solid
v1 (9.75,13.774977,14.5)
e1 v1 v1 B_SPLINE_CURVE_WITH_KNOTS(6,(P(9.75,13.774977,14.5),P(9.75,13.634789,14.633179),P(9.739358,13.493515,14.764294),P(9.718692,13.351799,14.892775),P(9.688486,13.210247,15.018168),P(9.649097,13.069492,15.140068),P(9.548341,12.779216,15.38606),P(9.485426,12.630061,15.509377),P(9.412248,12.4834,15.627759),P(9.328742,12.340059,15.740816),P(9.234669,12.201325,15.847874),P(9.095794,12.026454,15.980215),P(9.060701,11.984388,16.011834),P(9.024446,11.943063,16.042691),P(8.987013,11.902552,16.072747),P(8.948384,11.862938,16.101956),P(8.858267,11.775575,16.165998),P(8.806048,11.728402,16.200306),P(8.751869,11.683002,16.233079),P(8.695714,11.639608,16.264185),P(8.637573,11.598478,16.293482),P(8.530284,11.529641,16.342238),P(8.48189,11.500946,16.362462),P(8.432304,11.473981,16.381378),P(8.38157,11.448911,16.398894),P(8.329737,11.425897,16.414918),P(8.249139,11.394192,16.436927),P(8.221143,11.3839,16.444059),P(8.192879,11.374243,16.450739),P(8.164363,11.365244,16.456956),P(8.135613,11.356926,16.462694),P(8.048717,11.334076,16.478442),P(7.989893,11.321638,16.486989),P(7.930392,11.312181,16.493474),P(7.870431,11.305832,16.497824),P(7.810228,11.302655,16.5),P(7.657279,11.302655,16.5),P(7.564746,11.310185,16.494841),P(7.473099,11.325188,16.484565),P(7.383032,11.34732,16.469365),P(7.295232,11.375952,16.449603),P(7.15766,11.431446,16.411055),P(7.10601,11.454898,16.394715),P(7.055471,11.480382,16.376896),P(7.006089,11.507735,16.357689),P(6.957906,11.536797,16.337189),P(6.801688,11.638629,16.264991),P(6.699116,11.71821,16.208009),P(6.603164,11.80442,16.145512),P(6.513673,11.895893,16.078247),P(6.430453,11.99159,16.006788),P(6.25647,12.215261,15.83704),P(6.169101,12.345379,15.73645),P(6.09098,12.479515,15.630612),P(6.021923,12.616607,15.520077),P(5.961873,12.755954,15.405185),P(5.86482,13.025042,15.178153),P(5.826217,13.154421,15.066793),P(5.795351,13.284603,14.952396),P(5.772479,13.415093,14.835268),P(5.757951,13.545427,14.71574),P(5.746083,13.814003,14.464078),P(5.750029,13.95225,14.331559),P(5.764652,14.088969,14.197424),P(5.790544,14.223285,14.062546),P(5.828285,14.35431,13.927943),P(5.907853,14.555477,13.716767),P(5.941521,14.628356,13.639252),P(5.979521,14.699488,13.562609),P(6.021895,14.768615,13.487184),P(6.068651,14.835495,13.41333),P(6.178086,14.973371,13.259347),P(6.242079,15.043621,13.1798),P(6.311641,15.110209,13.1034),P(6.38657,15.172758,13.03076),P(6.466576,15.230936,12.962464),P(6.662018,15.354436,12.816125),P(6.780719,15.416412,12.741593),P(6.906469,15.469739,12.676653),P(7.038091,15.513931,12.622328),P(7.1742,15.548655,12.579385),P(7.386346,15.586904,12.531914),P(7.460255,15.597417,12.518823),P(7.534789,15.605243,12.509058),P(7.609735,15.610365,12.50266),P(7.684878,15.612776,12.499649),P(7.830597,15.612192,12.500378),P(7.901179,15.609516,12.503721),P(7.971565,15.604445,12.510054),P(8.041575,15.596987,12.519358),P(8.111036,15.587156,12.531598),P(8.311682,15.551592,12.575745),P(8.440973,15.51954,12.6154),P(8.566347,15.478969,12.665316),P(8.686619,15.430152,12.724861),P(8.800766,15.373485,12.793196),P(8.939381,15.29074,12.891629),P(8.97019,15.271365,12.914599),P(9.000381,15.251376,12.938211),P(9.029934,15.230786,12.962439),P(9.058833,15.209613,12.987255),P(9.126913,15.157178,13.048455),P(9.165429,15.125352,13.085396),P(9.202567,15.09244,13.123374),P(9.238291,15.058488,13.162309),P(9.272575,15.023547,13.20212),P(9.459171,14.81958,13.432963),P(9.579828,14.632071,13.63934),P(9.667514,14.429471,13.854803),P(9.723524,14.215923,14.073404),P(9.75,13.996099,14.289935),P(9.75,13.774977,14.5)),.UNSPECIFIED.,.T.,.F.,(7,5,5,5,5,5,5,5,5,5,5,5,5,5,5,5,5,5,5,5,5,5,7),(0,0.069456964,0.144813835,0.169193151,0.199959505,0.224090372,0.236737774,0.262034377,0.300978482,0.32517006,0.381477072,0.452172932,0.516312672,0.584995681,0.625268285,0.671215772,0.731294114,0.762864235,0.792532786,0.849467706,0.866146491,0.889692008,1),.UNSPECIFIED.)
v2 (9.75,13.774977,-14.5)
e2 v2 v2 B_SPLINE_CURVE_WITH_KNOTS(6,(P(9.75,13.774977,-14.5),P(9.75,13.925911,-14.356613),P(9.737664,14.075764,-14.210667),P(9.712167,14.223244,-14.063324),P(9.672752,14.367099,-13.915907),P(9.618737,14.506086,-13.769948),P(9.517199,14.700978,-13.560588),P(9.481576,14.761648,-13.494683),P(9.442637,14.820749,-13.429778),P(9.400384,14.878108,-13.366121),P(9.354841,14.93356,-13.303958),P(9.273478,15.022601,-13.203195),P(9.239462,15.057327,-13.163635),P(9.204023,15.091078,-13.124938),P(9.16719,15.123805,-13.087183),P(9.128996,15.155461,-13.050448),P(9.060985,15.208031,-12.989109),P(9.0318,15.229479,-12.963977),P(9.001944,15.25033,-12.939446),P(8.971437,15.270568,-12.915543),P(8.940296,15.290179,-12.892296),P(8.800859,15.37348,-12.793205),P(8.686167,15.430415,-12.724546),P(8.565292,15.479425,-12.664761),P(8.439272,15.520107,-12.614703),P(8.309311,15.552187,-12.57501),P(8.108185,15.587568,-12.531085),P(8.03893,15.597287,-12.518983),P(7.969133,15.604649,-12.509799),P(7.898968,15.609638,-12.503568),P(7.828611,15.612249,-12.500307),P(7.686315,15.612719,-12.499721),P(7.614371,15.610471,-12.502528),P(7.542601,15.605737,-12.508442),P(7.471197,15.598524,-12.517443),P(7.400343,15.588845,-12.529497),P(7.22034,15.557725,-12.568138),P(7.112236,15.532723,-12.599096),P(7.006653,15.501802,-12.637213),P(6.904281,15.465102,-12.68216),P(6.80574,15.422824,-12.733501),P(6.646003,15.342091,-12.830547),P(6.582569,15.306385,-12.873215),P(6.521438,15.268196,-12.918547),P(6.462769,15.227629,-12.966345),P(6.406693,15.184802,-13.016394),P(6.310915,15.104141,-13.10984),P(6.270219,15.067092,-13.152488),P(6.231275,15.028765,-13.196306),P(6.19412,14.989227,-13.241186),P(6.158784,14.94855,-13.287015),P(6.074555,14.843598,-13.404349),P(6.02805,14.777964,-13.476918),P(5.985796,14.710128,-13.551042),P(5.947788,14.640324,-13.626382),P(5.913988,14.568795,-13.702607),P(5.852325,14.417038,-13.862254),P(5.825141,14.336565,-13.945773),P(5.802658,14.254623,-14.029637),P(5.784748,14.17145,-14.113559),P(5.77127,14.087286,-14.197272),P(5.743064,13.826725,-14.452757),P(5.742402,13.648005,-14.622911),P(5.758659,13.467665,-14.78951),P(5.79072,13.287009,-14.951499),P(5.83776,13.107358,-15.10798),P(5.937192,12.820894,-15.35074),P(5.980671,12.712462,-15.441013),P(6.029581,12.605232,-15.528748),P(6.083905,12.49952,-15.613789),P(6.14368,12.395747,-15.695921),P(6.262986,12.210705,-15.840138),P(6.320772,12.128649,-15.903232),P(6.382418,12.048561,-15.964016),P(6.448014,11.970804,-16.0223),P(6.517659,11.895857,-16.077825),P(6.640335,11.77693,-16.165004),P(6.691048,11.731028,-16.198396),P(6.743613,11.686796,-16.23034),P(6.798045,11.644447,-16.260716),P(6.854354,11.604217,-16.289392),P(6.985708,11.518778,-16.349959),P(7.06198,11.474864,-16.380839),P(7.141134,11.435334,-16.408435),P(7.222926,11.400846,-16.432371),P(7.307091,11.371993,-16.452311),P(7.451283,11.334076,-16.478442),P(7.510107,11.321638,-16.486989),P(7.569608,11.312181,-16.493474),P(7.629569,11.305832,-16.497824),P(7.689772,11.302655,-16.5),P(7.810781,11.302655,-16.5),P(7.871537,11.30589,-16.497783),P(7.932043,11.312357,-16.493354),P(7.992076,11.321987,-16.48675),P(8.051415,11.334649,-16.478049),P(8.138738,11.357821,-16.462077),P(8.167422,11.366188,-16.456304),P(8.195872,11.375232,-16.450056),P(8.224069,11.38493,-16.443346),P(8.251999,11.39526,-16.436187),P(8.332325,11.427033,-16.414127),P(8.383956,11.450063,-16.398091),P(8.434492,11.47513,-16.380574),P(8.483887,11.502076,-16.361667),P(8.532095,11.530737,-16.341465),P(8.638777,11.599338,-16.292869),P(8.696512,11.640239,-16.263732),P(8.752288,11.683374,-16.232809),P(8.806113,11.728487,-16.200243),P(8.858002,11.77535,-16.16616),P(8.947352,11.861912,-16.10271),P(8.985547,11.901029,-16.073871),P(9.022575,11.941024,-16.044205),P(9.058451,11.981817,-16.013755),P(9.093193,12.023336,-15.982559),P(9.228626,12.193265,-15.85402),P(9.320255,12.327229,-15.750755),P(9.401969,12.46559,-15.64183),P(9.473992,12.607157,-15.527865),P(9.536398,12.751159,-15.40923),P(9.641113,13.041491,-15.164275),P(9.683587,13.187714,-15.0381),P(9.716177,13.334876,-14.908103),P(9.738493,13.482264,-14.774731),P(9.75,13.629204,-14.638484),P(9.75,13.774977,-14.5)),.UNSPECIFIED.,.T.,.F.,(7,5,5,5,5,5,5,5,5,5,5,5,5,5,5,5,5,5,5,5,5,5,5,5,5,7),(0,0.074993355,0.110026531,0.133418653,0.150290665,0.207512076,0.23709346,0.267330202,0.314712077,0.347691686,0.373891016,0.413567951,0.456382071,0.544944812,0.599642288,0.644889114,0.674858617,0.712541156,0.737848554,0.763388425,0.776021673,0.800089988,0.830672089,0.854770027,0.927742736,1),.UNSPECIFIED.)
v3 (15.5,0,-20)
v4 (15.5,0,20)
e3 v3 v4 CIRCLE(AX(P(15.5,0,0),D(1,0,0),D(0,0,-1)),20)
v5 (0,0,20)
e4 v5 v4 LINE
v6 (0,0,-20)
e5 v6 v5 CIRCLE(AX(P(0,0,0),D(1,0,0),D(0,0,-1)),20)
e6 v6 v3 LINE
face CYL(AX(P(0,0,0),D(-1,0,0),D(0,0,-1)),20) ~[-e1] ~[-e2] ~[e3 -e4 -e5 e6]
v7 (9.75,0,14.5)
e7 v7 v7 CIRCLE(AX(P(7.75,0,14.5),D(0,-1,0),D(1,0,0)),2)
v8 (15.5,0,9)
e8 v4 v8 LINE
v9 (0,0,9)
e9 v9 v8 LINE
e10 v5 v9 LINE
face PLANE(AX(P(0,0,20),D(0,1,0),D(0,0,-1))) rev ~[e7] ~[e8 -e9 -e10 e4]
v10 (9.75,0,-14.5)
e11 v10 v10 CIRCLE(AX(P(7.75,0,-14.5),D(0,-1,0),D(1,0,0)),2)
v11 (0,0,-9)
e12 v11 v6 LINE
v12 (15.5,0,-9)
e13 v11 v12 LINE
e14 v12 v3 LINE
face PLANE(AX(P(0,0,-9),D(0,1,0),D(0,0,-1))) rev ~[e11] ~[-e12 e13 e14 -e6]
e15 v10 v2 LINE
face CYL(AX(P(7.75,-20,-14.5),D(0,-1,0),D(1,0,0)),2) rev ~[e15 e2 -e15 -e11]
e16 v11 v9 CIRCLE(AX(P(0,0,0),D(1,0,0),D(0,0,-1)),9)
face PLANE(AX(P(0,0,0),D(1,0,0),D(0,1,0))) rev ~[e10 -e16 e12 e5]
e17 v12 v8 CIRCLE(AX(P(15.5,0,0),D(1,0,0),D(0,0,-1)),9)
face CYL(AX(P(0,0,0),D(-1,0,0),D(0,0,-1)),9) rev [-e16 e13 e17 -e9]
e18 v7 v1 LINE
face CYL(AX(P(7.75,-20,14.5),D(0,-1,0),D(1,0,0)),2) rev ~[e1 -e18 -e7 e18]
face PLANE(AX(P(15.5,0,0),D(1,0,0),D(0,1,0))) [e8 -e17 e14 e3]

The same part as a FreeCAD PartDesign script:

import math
import FreeCAD as App
import Part
import Sketcher

V = App.Vector
Q = App.Units.Quantity

doc = App.newDocument("Part")
body = doc.addObject("PartDesign::Body", "Body")

# Sketch on YZ plane
sketch1 = body.newObject("Sketcher::SketchObject", "Sketch")
sketch1.AttachmentSupport = (doc.getObject("YZ_Plane"), [""])
sketch1.MapMode = "FlatFace"
sketch1.addGeometry(Part.LineSegment(V(0, -9, 0), V(0, -20, 0)), False)
sketch1.addGeometry(Part.ArcOfCircle(Part.Circle(V(0, 0, 0), V(0, 0, 1), 20), math.radians(-90), math.radians(90)), False)
sketch1.addGeometry(Part.LineSegment(V(0, 20, 0), V(0, 9, 0)), False)
sketch1.addGeometry(Part.ArcOfCircle(Part.Circle(V(0, 0, 0), V(0, 0, 1), 9), math.radians(-90), math.radians(90)), False)
sketch1.addConstraint(Sketcher.Constraint("Coincident", 0, 2, 1, 1))
sketch1.addConstraint(Sketcher.Constraint("Coincident", 1, 2, 2, 1))
sketch1.addConstraint(Sketcher.Constraint("Coincident", 2, 2, 3, 2))
sketch1.addConstraint(Sketcher.Constraint("Coincident", 3, 1, 0, 1))
sketch1.addConstraint(Sketcher.Constraint("Vertical", 0))
sketch1.addConstraint(Sketcher.Constraint("Vertical", 2))
sketch1.addConstraint(Sketcher.Constraint("Coincident", 1, 3, -1, 1))
sketch1.addConstraint(Sketcher.Constraint("Coincident", 3, 3, -1, 1))
sketch1.addConstraint(Sketcher.Constraint("PointOnObject", 0, 2, -2))
sketch1.addConstraint(Sketcher.Constraint("PointOnObject", 1, 2, -2))
sketch1.addConstraint(Sketcher.Constraint("Radius", 1, Q("20 mm")))
sketch1.addConstraint(Sketcher.Constraint("Radius", 3, Q("9 mm")))
pad1 = body.newObject("PartDesign::Pad", "Pad")
pad1.Profile = sketch1
pad1.Length = 15.5

# Sketch on XZ plane
sketch2 = body.newObject("Sketcher::SketchObject", "Sketch001")
sketch2.AttachmentSupport = (doc.getObject("XZ_Plane"), [""])
sketch2.MapMode = "FlatFace"
sketch2.AttachmentOffset = App.Placement(V(0, 0, 20), App.Rotation())
sketch2.addGeometry(Part.Circle(V(7.75, 14.5, 0), V(0, 0, 1), 2), False)
sketch2.addGeometry(Part.Circle(V(7.75, -14.5, 0), V(0, 0, 1), 2), False)
sketch2.addConstraint(Sketcher.Constraint("Equal", 0, 1))
sketch2.addConstraint(Sketcher.Constraint("Symmetric", 0, 3, 1, 3, -1))
sketch2.addConstraint(Sketcher.Constraint("Diameter", 0, Q("4 mm")))
sketch2.addConstraint(Sketcher.Constraint("DistanceY", 1, 3, 0, 3, Q("29 mm")))
sketch2.addConstraint(Sketcher.Constraint("DistanceX", -1, 1, 0, 3, Q("7.75 mm")))
pocket1 = body.newObject("PartDesign::Pocket", "Pocket")
pocket1.Profile = sketch2
pocket1.Type = "ThroughAll"

doc.recompute()
